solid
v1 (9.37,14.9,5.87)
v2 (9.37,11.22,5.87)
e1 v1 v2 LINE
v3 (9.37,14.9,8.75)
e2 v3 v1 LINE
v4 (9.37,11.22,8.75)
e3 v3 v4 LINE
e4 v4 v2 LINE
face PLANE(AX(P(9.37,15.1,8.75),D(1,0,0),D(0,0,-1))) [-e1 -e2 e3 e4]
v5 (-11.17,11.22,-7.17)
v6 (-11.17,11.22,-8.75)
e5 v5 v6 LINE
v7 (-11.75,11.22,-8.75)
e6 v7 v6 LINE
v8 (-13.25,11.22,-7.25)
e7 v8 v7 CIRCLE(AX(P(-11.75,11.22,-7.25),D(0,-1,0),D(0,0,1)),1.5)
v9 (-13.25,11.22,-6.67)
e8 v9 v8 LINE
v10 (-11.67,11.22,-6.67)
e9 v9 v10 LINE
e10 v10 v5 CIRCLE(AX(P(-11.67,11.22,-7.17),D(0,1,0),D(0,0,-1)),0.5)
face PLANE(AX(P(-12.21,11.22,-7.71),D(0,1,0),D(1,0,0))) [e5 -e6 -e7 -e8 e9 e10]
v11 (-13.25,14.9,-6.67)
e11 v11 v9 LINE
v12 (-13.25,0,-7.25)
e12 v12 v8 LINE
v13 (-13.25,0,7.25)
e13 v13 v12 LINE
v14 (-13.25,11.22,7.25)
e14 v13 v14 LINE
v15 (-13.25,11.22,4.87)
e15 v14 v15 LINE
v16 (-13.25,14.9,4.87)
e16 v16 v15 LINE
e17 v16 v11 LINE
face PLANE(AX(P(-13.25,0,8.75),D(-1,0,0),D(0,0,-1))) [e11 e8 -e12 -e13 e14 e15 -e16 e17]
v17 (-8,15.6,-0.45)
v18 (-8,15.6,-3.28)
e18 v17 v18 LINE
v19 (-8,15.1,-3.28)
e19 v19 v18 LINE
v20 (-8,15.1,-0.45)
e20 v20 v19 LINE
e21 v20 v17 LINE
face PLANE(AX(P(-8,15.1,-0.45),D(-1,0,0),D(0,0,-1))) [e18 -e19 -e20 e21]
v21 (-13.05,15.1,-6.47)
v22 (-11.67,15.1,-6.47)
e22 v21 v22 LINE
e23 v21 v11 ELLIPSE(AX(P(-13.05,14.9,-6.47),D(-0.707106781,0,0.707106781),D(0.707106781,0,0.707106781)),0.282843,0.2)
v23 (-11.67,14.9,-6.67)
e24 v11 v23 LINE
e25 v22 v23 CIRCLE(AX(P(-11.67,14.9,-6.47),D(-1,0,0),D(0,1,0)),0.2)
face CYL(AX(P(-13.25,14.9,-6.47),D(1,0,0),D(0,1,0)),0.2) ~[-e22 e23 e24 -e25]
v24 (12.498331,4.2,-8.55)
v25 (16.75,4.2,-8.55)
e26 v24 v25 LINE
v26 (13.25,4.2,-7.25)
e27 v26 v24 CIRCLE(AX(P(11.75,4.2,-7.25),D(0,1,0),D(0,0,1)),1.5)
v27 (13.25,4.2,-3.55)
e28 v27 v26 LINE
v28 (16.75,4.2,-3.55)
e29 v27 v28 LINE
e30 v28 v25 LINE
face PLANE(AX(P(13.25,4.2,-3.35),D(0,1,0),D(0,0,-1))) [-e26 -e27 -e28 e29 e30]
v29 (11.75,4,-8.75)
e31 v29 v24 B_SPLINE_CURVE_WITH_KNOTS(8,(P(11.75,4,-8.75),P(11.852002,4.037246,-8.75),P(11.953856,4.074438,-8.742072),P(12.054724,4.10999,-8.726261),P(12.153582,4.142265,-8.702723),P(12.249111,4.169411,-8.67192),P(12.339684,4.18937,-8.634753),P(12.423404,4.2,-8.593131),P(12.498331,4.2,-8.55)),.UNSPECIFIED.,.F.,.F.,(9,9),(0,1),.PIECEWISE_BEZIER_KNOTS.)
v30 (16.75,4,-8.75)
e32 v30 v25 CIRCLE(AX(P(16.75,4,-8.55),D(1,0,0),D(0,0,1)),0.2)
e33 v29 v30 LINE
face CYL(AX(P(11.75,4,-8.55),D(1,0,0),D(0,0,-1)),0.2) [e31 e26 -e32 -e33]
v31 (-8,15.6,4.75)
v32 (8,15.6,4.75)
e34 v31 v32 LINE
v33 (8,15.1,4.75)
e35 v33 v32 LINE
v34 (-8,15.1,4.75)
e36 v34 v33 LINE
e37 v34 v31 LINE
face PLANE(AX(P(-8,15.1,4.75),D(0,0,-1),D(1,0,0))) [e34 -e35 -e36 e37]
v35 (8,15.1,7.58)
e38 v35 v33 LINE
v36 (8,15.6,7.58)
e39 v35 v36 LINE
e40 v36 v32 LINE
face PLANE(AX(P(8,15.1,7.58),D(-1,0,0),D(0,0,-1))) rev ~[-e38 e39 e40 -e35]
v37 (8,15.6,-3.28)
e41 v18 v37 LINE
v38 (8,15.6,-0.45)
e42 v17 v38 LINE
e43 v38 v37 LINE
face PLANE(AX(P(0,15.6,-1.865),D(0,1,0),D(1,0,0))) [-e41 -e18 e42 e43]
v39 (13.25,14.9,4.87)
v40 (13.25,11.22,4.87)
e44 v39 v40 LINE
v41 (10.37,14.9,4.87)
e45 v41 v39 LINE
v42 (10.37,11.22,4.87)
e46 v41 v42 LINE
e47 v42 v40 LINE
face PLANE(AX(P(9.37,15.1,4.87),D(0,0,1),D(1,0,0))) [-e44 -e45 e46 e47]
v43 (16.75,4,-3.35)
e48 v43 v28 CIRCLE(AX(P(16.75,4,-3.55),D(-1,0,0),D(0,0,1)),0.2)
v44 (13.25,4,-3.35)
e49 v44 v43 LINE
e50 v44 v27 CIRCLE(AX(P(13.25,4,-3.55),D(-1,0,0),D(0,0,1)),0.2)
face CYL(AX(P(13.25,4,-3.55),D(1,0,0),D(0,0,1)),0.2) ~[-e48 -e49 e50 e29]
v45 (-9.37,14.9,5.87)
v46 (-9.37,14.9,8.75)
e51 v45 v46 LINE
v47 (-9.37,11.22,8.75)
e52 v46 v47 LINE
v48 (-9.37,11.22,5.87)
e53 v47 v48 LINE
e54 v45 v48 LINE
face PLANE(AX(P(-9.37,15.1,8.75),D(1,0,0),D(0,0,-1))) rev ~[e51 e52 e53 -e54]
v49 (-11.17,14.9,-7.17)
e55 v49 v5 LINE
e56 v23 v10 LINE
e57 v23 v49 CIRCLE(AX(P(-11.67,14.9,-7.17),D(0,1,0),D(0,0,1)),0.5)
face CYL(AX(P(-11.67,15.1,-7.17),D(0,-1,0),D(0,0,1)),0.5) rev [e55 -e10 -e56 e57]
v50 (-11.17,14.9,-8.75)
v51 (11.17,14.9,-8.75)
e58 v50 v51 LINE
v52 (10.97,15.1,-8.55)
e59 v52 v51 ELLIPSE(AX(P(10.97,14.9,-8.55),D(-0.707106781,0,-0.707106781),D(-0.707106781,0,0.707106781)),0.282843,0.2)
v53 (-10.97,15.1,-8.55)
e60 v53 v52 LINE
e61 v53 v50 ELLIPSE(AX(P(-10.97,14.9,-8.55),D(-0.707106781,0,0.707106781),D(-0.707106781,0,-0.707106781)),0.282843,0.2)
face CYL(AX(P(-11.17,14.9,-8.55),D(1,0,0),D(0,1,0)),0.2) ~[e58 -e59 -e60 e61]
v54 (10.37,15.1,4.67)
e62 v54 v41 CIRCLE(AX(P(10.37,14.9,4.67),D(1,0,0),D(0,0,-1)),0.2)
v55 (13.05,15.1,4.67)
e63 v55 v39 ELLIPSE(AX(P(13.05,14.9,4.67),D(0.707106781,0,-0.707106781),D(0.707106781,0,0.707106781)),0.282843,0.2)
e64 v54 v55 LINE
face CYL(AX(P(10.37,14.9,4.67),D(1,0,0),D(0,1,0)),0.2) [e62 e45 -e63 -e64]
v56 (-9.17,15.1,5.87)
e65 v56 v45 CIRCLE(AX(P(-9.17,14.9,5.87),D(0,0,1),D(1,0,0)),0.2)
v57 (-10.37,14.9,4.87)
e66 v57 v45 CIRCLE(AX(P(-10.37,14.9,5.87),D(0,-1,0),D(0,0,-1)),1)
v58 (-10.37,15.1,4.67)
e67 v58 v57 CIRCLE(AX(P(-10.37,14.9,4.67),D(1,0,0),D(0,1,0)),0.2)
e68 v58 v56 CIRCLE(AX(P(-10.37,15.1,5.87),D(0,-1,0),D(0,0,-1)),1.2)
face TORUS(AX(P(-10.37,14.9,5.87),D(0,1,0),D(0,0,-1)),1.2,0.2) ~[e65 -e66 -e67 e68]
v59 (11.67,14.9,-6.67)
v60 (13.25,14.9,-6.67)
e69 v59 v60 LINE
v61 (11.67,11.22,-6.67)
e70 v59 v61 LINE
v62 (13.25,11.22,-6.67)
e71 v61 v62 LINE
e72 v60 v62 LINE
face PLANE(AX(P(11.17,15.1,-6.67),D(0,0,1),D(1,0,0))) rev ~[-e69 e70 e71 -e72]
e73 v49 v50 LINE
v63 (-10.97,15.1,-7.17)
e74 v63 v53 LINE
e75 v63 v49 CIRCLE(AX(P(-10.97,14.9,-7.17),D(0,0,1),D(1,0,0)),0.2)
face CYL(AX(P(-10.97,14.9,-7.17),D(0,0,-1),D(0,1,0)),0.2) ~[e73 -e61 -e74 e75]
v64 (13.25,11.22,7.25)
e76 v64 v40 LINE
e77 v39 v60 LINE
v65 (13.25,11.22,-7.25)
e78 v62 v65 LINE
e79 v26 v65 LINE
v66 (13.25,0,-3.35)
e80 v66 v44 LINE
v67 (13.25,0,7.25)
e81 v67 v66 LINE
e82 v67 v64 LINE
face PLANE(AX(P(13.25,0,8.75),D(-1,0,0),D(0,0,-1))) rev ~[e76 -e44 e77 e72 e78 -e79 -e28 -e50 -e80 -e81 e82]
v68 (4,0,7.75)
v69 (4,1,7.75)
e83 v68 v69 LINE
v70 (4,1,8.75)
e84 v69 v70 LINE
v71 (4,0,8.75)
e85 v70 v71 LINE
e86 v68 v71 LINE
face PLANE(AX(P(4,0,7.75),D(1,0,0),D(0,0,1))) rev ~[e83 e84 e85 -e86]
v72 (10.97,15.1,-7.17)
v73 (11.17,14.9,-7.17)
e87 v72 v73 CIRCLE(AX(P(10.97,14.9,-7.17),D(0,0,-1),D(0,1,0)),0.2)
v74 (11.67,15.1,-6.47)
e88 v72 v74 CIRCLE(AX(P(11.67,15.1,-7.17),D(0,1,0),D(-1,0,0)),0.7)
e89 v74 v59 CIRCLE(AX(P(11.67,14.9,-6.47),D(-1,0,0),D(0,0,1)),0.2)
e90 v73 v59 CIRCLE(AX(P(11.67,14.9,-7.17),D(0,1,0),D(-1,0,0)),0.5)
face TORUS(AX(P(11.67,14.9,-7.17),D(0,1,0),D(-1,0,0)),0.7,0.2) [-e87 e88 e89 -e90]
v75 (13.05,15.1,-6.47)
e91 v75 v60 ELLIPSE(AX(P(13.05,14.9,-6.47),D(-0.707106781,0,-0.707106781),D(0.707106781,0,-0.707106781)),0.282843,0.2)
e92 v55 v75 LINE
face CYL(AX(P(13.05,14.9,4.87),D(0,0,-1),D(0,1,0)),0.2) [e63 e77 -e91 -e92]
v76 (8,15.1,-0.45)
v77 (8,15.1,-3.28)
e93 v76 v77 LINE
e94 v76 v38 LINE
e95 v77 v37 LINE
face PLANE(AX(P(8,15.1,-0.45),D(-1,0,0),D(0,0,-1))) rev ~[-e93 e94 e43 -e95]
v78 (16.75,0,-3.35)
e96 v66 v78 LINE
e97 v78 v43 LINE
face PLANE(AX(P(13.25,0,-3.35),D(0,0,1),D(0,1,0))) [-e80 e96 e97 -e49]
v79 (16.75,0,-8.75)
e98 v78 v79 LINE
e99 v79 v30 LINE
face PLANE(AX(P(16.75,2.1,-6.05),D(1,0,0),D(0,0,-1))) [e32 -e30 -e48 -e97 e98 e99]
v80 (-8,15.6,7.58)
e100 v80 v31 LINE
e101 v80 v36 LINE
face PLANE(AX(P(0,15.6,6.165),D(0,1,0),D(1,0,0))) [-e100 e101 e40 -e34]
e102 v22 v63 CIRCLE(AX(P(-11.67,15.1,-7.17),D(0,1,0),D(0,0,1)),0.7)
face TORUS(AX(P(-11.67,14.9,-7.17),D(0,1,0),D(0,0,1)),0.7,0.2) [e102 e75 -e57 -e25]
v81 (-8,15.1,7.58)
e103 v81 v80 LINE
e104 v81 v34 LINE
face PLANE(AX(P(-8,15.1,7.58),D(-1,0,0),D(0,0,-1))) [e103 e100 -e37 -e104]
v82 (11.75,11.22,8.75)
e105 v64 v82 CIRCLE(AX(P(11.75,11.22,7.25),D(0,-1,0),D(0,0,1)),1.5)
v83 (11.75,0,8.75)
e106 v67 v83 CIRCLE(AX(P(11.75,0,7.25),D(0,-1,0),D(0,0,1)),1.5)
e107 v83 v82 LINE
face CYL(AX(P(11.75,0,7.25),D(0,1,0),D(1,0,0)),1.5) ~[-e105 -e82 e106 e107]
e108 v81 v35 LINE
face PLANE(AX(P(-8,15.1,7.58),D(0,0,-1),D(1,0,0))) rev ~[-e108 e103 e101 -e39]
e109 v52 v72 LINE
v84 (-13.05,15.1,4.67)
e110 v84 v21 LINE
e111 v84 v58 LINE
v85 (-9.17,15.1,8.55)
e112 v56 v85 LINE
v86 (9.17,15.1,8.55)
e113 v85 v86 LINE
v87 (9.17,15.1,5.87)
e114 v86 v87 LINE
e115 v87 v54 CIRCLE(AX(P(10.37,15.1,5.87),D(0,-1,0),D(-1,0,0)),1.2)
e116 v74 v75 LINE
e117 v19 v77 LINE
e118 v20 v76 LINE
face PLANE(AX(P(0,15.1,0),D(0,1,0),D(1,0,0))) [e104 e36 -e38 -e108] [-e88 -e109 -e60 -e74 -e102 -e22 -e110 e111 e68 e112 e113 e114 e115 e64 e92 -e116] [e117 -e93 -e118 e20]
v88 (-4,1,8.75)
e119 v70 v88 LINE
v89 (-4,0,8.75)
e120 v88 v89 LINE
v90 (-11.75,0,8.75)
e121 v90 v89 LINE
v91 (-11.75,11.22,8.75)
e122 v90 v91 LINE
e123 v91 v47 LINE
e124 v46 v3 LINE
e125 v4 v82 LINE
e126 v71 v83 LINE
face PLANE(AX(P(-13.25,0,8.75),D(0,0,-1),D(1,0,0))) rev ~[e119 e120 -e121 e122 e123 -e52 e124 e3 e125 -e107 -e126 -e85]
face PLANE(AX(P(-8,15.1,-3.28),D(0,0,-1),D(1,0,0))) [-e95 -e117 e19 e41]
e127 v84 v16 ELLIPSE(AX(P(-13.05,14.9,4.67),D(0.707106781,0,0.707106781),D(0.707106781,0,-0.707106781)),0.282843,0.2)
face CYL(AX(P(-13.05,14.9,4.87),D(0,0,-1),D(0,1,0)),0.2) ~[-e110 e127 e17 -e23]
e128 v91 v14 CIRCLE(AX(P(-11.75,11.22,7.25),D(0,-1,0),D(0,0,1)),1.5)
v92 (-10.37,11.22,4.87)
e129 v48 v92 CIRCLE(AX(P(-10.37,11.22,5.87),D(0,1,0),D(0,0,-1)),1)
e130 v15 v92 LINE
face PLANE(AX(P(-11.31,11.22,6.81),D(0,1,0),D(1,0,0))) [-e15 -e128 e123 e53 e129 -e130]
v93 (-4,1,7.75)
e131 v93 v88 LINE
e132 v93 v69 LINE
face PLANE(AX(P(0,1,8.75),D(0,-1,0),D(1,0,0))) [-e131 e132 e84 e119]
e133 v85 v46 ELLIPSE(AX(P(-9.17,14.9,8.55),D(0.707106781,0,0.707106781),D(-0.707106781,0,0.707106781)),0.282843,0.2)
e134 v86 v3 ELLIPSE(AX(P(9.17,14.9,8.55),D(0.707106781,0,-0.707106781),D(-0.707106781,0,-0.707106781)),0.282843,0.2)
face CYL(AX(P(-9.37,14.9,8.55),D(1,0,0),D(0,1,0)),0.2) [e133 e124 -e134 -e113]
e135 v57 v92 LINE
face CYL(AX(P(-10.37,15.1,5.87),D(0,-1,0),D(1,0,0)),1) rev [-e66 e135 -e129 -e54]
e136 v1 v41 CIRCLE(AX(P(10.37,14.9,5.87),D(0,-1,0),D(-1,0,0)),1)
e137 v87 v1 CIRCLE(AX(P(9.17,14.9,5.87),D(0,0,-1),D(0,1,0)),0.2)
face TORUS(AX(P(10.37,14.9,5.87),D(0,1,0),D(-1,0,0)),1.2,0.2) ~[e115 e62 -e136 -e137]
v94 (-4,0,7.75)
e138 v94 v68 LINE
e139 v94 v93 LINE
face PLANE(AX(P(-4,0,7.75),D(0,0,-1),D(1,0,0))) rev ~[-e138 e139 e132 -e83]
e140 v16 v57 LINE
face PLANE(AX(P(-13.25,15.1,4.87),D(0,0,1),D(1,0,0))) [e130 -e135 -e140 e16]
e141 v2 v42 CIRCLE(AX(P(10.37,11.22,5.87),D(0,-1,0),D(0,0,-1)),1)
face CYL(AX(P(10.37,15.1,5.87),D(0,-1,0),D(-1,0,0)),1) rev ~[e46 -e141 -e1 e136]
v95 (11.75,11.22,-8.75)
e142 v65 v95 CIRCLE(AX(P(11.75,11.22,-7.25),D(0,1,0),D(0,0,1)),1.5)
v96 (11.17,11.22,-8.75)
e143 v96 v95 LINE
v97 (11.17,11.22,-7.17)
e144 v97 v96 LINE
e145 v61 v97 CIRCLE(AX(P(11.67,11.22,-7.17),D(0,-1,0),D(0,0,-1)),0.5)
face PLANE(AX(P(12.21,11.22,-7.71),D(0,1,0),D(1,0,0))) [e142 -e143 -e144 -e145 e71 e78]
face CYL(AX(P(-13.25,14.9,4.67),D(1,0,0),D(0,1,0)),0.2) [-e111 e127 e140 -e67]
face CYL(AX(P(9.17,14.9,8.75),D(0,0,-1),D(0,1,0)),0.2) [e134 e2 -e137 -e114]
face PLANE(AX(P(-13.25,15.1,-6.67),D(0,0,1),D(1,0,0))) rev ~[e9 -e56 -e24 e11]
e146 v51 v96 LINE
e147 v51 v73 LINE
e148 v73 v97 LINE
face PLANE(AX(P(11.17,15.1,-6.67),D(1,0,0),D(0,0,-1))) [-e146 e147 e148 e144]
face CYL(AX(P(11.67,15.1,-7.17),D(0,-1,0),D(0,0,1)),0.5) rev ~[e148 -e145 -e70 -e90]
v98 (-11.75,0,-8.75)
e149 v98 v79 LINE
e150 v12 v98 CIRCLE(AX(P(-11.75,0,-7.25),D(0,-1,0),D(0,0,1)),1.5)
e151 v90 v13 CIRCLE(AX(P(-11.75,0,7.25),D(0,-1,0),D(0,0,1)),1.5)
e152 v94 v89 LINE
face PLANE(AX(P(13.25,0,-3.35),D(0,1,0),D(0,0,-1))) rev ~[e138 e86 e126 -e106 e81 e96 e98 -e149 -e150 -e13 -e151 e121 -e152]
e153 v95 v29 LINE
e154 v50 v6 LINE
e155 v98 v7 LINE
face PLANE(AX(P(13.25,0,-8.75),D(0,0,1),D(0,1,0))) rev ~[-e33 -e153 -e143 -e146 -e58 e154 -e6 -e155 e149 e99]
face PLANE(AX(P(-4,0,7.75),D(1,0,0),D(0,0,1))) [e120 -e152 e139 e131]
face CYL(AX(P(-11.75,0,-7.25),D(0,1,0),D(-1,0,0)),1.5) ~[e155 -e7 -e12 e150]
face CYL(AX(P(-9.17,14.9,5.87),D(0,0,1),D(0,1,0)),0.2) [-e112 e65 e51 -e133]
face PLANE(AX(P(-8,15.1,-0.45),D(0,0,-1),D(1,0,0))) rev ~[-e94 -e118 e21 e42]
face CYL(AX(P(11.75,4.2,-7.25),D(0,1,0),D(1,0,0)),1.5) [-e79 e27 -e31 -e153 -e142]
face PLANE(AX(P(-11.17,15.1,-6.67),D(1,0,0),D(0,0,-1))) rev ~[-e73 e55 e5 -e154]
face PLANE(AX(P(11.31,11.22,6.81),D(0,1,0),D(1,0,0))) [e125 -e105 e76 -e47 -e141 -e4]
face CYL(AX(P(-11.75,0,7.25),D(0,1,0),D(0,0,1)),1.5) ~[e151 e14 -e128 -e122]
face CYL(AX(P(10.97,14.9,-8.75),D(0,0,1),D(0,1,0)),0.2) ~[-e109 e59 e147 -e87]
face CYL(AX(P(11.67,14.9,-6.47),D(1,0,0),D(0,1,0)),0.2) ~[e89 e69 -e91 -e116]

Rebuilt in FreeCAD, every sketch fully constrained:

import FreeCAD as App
import Part
import Sketcher
from FreeCAD import Vector
Q = App.Units.Quantity


def edges_at(feature, points):
    """Names of the edges that pass closest to the given points."""
    edges = feature.Shape.Edges
    near = lambda p: min(range(len(edges)), key=lambda i: edges[i].distToShape(Part.Vertex(*p))[0])
    return sorted({f"Edge{near(p) + 1}" for p in points})


def add_polygon(sketch, points):
    """Adds a closed chain of lines whose ends are joined by coincident constraints."""
    first, n = sketch.GeometryCount, len(points)
    for a, b in zip(points, points[1:] + points[:1]):
        sketch.addGeometry(Part.LineSegment(App.Vector(*a, 0), App.Vector(*b, 0)), False)
    for i in range(n):
        sketch.addConstraint(Sketcher.Constraint("Coincident", first + i, 2, first + (i + 1) % n, 1))

doc = App.newDocument("Part")
body = doc.addObject("PartDesign::Body", "Body")

# Sketch on XZ plane
sketch1 = body.newObject("Sketcher::SketchObject", "Sketch")
sketch1.AttachmentSupport = (doc.getObject("XZ_Plane"), [""])
sketch1.MapMode = "FlatFace"
add_polygon(sketch1, [(-13, -9), (-13, 9), (13, 9), (13, -9)])  # lines 0-3
sketch1.addConstraint(Sketcher.Constraint("Vertical", 0))
sketch1.addConstraint(Sketcher.Constraint("Horizontal", 1))
sketch1.addConstraint(Sketcher.Constraint("Vertical", 2))
sketch1.addConstraint(Sketcher.Constraint("Horizontal", 3))
sketch1.addConstraint(Sketcher.Constraint("Symmetric", 0, 2, 2, 2, -1, 1))
sketch1.addConstraint(Sketcher.Constraint("DistanceX", 1, 1, 1, 2, Q("26.5 mm")))
sketch1.addConstraint(Sketcher.Constraint("DistanceY", 0, 1, 0, 2, Q("17.5 mm")))
pad1 = body.newObject("PartDesign::Pad", "Pad")
pad1.Profile = sketch1
pad1.Length = 15.1
pad1.Reversed = True

# Sketch on YZ plane
sketch2 = body.newObject("Sketcher::SketchObject", "Sketch001")
sketch2.AttachmentSupport = (doc.getObject("YZ_Plane"), [""])
sketch2.MapMode = "FlatFace"
sketch2.AttachmentOffset = App.Placement(Vector(0, 0, 13.25), App.Rotation())
add_polygon(sketch2, [(4.2, -3.4), (0, -3.4), (0, -8.8), (4.2, -8.8)])  # lines 0-3
sketch2.addConstraint(Sketcher.Constraint("Horizontal", 0))
sketch2.addConstraint(Sketcher.Constraint("Vertical", 1))
sketch2.addConstraint(Sketcher.Constraint("Horizontal", 2))
sketch2.addConstraint(Sketcher.Constraint("Vertical", 3))
sketch2.addConstraint(Sketcher.Constraint("PointOnObject", 0, 2, -2))
sketch2.addConstraint(Sketcher.Constraint("DistanceX", 0, 2, 0, 1, Q("4.2 mm")))
sketch2.addConstraint(Sketcher.Constraint("DistanceY", 1, 2, 1, 1, Q("5.4 mm")))
sketch2.addConstraint(Sketcher.Constraint("DistanceY", 0, 2, -1, 1, Q("3.35 mm")))
pad2 = body.newObject("PartDesign::Pad", "Pad001")
pad2.Profile = sketch2
pad2.Length = 3.5

# Sketch on XZ plane
sketch3 = body.newObject("Sketcher::SketchObject", "Sketch002")
sketch3.AttachmentSupport = (doc.getObject("XZ_Plane"), [""])
sketch3.MapMode = "FlatFace"
sketch3.AttachmentOffset = App.Placement(Vector(0, 0, -15.1), App.Rotation())
add_polygon(sketch3, [(-13.2, -8.8), (-13.2, -6.7), (-11.2, -6.7), (-11.2, -8.8)])  # lines 0-3
add_polygon(sketch3, [(-13.2, 4.9), (-13.2, 8.8), (-9.4, 8.8), (-9.4, 4.9)])  # lines 4-7
add_polygon(sketch3, [(9.4, 4.9), (9.4, 8.8), (13.2, 8.8), (13.2, 4.9)])  # lines 8-11
add_polygon(sketch3, [(11.2, -8.8), (11.2, -6.7), (13.2, -6.7), (13.2, -8.8)])  # lines 12-15
sketch3.addConstraint(Sketcher.Constraint("Vertical", 0))
sketch3.addConstraint(Sketcher.Constraint("Horizontal", 1))
sketch3.addConstraint(Sketcher.Constraint("Vertical", 2))
sketch3.addConstraint(Sketcher.Constraint("Horizontal", 3))
sketch3.addConstraint(Sketcher.Constraint("Vertical", 4))
sketch3.addConstraint(Sketcher.Constraint("Horizontal", 5))
sketch3.addConstraint(Sketcher.Constraint("Vertical", 6))
sketch3.addConstraint(Sketcher.Constraint("Horizontal", 7))
sketch3.addConstraint(Sketcher.Constraint("Vertical", 8))
sketch3.addConstraint(Sketcher.Constraint("Horizontal", 9))
sketch3.addConstraint(Sketcher.Constraint("Vertical", 10))
sketch3.addConstraint(Sketcher.Constraint("Horizontal", 11))
sketch3.addConstraint(Sketcher.Constraint("Vertical", 12))
sketch3.addConstraint(Sketcher.Constraint("Horizontal", 13))
sketch3.addConstraint(Sketcher.Constraint("Vertical", 14))
sketch3.addConstraint(Sketcher.Constraint("Horizontal", 15))
sketch3.addConstraint(Sketcher.Constraint("Symmetric", 3, 2, 9, 2, -1, 1))
sketch3.addConstraint(Sketcher.Constraint("Symmetric", 4, 2, 14, 2, -1, 1))
sketch3.addConstraint(Sketcher.Constraint("Symmetric", 5, 2, 8, 2, -2))
sketch3.addConstraint(Sketcher.Constraint("Symmetric", 7, 2, 10, 2, -2))
sketch3.addConstraint(Sketcher.Constraint("Symmetric", 1, 2, 12, 2, -2))
sketch3.addConstraint(Sketcher.Constraint("Equal", 15, 0))
sketch3.addConstraint(Sketcher.Constraint("Equal", 11, 4))
sketch3.addConstraint(Sketcher.Constraint("DistanceX", 1, 1, 1, 2, Q("2.08 mm")))
sketch3.addConstraint(Sketcher.Constraint("DistanceX", 5, 1, 5, 2, Q("3.88 mm")))
sketch3.addConstraint(Sketcher.Constraint("DistanceY", 3, 2, 4, 2, Q("17.5 mm")))
sketch3.addConstraint(Sketcher.Constraint("DistanceX", 4, 2, 9, 2, Q("26.5 mm")))
pocket1 = body.newObject("PartDesign::Pocket", "Pocket")
pocket1.Profile = sketch3
pocket1.Length = 3.88
pocket1.Reversed = True

# Sketch on XZ plane
sketch4 = body.newObject("Sketcher::SketchObject", "Sketch003")
sketch4.AttachmentSupport = (doc.getObject("XZ_Plane"), [""])
sketch4.MapMode = "FlatFace"
add_polygon(sketch4, [(-4, 9.8), (-4, 7.8), (4, 7.8), (4, 9.8)])  # lines 0-3
sketch4.addConstraint(Sketcher.Constraint("Vertical", 0))
sketch4.addConstraint(Sketcher.Constraint("Horizontal", 1))
sketch4.addConstraint(Sketcher.Constraint("Vertical", 2))
sketch4.addConstraint(Sketcher.Constraint("Horizontal", 3))
sketch4.addConstraint(Sketcher.Constraint("DistanceX", 1, 1, 1, 2, Q("8 mm")))
sketch4.addConstraint(Sketcher.Constraint("DistanceY", 0, 2, 0, 1, Q("2 mm")))
sketch4.addConstraint(Sketcher.Constraint("DistanceX", 0, 2, -1, 1, Q("4 mm")))
sketch4.addConstraint(Sketcher.Constraint("DistanceY", -1, 1, 0, 2, Q("7.75 mm")))
pocket2 = body.newObject("PartDesign::Pocket", "Pocket001")
pocket2.Profile = sketch4
pocket2.Length = 1
doc.recompute()

fillet = body.newObject("PartDesign::Fillet", "Fillet")
fillet.Base = (pocket2, edges_at(pocket2, [
    (13.25, 5.61, 8.75),
    (-13.25, 5.61, 8.75),
    (-13.25, 5.61, -8.75),
    (13.25, 7.71, -8.75),
]))
fillet.Radius = 1.5
doc.recompute()

fillet2 = body.newObject("PartDesign::Fillet", "Fillet001")
fillet2.Base = (fillet, edges_at(fillet, [(9.37, 13.16, 4.87), (-9.37, 13.16, 4.87)]))
fillet2.Radius = 1
doc.recompute()

fillet3 = body.newObject("PartDesign::Fillet", "Fillet002")
fillet3.Base = (fillet2, edges_at(fillet2, [(11.17, 13.16, -6.67), (-11.17, 13.16, -6.67)]))
fillet3.Radius = 0.5
doc.recompute()

fillet4 = body.newObject("PartDesign::Fillet", "Fillet003")
fillet4.Base = (fillet3, edges_at(fillet3, [
    (9.37, 15.1, 7.31),
    (-11.81, 15.1, 4.87),
    (9.663, 15.1, 5.163),
    (-9.663, 15.1, 5.163),
    (-11.17, 15.1, -7.96),
    (12.46, 15.1, -6.67),
    (-11.316, 15.1, -6.816),
    (11.316, 15.1, -6.816),
    (14.25, 4.2, -8.75),
    (15, 4.2, -3.35),
    (13.25, 15.1, -0.9),
    (0, 15.1, -8.75),
    (-13.25, 15.1, -0.9),
    (0, 15.1, 8.75),
    (11.17, 15.1, -7.96),
    (11.81, 15.1, 4.87),
    (-9.37, 15.1, 7.31),
    (-12.46, 15.1, -6.67),
]))
fillet4.Radius = 0.2

# Sketch on XZ plane
sketch5 = body.newObject("Sketcher::SketchObject", "Sketch004")
sketch5.AttachmentSupport = (doc.getObject("XZ_Plane"), [""])
sketch5.MapMode = "FlatFace"
sketch5.AttachmentOffset = App.Placement(Vector(0, 0, -15.1), App.Rotation())
add_polygon(sketch5, [(-8, -3.3), (-8, -0.5), (8, -0.5), (8, -3.3)])  # lines 0-3
add_polygon(sketch5, [(-8, 4.8), (-8, 7.6), (8, 7.6), (8, 4.8)])  # lines 4-7
sketch5.addConstraint(Sketcher.Constraint("Vertical", 0))
sketch5.addConstraint(Sketcher.Constraint("Horizontal", 1))
sketch5.addConstraint(Sketcher.Constraint("Vertical", 2))
sketch5.addConstraint(Sketcher.Constraint("Horizontal", 3))
sketch5.addConstraint(Sketcher.Constraint("Vertical", 4))
sketch5.addConstraint(Sketcher.Constraint("Horizontal", 5))
sketch5.addConstraint(Sketcher.Constraint("Vertical", 6))
sketch5.addConstraint(Sketcher.Constraint("Horizontal", 7))
sketch5.addConstraint(Sketcher.Constraint("Vertical", 3, 2, 4, 2))
sketch5.addConstraint(Sketcher.Constraint("Vertical", 2, 2, 5, 2))
sketch5.addConstraint(Sketcher.Constraint("Equal", 2, 4))
sketch5.addConstraint(Sketcher.Constraint("DistanceX", 1, 1, 1, 2, Q("16 mm")))
sketch5.addConstraint(Sketcher.Constraint("DistanceX", 0, 2, -1, 1, Q("8 mm")))
sketch5.addConstraint(Sketcher.Constraint("DistanceY", 0, 1, 0, 2, Q("2.83 mm")))
sketch5.addConstraint(Sketcher.Constraint("DistanceY", 1, 2, 6, 2, Q("5.2 mm")))
sketch5.addConstraint(Sketcher.Constraint("DistanceY", 0, 2, -1, 1, Q("0.45 mm")))
pad3 = body.newObject("PartDesign::Pad", "Pad002")
pad3.Profile = sketch5
pad3.Length = 0.5
pad3.Reversed = True

doc.recompute()
